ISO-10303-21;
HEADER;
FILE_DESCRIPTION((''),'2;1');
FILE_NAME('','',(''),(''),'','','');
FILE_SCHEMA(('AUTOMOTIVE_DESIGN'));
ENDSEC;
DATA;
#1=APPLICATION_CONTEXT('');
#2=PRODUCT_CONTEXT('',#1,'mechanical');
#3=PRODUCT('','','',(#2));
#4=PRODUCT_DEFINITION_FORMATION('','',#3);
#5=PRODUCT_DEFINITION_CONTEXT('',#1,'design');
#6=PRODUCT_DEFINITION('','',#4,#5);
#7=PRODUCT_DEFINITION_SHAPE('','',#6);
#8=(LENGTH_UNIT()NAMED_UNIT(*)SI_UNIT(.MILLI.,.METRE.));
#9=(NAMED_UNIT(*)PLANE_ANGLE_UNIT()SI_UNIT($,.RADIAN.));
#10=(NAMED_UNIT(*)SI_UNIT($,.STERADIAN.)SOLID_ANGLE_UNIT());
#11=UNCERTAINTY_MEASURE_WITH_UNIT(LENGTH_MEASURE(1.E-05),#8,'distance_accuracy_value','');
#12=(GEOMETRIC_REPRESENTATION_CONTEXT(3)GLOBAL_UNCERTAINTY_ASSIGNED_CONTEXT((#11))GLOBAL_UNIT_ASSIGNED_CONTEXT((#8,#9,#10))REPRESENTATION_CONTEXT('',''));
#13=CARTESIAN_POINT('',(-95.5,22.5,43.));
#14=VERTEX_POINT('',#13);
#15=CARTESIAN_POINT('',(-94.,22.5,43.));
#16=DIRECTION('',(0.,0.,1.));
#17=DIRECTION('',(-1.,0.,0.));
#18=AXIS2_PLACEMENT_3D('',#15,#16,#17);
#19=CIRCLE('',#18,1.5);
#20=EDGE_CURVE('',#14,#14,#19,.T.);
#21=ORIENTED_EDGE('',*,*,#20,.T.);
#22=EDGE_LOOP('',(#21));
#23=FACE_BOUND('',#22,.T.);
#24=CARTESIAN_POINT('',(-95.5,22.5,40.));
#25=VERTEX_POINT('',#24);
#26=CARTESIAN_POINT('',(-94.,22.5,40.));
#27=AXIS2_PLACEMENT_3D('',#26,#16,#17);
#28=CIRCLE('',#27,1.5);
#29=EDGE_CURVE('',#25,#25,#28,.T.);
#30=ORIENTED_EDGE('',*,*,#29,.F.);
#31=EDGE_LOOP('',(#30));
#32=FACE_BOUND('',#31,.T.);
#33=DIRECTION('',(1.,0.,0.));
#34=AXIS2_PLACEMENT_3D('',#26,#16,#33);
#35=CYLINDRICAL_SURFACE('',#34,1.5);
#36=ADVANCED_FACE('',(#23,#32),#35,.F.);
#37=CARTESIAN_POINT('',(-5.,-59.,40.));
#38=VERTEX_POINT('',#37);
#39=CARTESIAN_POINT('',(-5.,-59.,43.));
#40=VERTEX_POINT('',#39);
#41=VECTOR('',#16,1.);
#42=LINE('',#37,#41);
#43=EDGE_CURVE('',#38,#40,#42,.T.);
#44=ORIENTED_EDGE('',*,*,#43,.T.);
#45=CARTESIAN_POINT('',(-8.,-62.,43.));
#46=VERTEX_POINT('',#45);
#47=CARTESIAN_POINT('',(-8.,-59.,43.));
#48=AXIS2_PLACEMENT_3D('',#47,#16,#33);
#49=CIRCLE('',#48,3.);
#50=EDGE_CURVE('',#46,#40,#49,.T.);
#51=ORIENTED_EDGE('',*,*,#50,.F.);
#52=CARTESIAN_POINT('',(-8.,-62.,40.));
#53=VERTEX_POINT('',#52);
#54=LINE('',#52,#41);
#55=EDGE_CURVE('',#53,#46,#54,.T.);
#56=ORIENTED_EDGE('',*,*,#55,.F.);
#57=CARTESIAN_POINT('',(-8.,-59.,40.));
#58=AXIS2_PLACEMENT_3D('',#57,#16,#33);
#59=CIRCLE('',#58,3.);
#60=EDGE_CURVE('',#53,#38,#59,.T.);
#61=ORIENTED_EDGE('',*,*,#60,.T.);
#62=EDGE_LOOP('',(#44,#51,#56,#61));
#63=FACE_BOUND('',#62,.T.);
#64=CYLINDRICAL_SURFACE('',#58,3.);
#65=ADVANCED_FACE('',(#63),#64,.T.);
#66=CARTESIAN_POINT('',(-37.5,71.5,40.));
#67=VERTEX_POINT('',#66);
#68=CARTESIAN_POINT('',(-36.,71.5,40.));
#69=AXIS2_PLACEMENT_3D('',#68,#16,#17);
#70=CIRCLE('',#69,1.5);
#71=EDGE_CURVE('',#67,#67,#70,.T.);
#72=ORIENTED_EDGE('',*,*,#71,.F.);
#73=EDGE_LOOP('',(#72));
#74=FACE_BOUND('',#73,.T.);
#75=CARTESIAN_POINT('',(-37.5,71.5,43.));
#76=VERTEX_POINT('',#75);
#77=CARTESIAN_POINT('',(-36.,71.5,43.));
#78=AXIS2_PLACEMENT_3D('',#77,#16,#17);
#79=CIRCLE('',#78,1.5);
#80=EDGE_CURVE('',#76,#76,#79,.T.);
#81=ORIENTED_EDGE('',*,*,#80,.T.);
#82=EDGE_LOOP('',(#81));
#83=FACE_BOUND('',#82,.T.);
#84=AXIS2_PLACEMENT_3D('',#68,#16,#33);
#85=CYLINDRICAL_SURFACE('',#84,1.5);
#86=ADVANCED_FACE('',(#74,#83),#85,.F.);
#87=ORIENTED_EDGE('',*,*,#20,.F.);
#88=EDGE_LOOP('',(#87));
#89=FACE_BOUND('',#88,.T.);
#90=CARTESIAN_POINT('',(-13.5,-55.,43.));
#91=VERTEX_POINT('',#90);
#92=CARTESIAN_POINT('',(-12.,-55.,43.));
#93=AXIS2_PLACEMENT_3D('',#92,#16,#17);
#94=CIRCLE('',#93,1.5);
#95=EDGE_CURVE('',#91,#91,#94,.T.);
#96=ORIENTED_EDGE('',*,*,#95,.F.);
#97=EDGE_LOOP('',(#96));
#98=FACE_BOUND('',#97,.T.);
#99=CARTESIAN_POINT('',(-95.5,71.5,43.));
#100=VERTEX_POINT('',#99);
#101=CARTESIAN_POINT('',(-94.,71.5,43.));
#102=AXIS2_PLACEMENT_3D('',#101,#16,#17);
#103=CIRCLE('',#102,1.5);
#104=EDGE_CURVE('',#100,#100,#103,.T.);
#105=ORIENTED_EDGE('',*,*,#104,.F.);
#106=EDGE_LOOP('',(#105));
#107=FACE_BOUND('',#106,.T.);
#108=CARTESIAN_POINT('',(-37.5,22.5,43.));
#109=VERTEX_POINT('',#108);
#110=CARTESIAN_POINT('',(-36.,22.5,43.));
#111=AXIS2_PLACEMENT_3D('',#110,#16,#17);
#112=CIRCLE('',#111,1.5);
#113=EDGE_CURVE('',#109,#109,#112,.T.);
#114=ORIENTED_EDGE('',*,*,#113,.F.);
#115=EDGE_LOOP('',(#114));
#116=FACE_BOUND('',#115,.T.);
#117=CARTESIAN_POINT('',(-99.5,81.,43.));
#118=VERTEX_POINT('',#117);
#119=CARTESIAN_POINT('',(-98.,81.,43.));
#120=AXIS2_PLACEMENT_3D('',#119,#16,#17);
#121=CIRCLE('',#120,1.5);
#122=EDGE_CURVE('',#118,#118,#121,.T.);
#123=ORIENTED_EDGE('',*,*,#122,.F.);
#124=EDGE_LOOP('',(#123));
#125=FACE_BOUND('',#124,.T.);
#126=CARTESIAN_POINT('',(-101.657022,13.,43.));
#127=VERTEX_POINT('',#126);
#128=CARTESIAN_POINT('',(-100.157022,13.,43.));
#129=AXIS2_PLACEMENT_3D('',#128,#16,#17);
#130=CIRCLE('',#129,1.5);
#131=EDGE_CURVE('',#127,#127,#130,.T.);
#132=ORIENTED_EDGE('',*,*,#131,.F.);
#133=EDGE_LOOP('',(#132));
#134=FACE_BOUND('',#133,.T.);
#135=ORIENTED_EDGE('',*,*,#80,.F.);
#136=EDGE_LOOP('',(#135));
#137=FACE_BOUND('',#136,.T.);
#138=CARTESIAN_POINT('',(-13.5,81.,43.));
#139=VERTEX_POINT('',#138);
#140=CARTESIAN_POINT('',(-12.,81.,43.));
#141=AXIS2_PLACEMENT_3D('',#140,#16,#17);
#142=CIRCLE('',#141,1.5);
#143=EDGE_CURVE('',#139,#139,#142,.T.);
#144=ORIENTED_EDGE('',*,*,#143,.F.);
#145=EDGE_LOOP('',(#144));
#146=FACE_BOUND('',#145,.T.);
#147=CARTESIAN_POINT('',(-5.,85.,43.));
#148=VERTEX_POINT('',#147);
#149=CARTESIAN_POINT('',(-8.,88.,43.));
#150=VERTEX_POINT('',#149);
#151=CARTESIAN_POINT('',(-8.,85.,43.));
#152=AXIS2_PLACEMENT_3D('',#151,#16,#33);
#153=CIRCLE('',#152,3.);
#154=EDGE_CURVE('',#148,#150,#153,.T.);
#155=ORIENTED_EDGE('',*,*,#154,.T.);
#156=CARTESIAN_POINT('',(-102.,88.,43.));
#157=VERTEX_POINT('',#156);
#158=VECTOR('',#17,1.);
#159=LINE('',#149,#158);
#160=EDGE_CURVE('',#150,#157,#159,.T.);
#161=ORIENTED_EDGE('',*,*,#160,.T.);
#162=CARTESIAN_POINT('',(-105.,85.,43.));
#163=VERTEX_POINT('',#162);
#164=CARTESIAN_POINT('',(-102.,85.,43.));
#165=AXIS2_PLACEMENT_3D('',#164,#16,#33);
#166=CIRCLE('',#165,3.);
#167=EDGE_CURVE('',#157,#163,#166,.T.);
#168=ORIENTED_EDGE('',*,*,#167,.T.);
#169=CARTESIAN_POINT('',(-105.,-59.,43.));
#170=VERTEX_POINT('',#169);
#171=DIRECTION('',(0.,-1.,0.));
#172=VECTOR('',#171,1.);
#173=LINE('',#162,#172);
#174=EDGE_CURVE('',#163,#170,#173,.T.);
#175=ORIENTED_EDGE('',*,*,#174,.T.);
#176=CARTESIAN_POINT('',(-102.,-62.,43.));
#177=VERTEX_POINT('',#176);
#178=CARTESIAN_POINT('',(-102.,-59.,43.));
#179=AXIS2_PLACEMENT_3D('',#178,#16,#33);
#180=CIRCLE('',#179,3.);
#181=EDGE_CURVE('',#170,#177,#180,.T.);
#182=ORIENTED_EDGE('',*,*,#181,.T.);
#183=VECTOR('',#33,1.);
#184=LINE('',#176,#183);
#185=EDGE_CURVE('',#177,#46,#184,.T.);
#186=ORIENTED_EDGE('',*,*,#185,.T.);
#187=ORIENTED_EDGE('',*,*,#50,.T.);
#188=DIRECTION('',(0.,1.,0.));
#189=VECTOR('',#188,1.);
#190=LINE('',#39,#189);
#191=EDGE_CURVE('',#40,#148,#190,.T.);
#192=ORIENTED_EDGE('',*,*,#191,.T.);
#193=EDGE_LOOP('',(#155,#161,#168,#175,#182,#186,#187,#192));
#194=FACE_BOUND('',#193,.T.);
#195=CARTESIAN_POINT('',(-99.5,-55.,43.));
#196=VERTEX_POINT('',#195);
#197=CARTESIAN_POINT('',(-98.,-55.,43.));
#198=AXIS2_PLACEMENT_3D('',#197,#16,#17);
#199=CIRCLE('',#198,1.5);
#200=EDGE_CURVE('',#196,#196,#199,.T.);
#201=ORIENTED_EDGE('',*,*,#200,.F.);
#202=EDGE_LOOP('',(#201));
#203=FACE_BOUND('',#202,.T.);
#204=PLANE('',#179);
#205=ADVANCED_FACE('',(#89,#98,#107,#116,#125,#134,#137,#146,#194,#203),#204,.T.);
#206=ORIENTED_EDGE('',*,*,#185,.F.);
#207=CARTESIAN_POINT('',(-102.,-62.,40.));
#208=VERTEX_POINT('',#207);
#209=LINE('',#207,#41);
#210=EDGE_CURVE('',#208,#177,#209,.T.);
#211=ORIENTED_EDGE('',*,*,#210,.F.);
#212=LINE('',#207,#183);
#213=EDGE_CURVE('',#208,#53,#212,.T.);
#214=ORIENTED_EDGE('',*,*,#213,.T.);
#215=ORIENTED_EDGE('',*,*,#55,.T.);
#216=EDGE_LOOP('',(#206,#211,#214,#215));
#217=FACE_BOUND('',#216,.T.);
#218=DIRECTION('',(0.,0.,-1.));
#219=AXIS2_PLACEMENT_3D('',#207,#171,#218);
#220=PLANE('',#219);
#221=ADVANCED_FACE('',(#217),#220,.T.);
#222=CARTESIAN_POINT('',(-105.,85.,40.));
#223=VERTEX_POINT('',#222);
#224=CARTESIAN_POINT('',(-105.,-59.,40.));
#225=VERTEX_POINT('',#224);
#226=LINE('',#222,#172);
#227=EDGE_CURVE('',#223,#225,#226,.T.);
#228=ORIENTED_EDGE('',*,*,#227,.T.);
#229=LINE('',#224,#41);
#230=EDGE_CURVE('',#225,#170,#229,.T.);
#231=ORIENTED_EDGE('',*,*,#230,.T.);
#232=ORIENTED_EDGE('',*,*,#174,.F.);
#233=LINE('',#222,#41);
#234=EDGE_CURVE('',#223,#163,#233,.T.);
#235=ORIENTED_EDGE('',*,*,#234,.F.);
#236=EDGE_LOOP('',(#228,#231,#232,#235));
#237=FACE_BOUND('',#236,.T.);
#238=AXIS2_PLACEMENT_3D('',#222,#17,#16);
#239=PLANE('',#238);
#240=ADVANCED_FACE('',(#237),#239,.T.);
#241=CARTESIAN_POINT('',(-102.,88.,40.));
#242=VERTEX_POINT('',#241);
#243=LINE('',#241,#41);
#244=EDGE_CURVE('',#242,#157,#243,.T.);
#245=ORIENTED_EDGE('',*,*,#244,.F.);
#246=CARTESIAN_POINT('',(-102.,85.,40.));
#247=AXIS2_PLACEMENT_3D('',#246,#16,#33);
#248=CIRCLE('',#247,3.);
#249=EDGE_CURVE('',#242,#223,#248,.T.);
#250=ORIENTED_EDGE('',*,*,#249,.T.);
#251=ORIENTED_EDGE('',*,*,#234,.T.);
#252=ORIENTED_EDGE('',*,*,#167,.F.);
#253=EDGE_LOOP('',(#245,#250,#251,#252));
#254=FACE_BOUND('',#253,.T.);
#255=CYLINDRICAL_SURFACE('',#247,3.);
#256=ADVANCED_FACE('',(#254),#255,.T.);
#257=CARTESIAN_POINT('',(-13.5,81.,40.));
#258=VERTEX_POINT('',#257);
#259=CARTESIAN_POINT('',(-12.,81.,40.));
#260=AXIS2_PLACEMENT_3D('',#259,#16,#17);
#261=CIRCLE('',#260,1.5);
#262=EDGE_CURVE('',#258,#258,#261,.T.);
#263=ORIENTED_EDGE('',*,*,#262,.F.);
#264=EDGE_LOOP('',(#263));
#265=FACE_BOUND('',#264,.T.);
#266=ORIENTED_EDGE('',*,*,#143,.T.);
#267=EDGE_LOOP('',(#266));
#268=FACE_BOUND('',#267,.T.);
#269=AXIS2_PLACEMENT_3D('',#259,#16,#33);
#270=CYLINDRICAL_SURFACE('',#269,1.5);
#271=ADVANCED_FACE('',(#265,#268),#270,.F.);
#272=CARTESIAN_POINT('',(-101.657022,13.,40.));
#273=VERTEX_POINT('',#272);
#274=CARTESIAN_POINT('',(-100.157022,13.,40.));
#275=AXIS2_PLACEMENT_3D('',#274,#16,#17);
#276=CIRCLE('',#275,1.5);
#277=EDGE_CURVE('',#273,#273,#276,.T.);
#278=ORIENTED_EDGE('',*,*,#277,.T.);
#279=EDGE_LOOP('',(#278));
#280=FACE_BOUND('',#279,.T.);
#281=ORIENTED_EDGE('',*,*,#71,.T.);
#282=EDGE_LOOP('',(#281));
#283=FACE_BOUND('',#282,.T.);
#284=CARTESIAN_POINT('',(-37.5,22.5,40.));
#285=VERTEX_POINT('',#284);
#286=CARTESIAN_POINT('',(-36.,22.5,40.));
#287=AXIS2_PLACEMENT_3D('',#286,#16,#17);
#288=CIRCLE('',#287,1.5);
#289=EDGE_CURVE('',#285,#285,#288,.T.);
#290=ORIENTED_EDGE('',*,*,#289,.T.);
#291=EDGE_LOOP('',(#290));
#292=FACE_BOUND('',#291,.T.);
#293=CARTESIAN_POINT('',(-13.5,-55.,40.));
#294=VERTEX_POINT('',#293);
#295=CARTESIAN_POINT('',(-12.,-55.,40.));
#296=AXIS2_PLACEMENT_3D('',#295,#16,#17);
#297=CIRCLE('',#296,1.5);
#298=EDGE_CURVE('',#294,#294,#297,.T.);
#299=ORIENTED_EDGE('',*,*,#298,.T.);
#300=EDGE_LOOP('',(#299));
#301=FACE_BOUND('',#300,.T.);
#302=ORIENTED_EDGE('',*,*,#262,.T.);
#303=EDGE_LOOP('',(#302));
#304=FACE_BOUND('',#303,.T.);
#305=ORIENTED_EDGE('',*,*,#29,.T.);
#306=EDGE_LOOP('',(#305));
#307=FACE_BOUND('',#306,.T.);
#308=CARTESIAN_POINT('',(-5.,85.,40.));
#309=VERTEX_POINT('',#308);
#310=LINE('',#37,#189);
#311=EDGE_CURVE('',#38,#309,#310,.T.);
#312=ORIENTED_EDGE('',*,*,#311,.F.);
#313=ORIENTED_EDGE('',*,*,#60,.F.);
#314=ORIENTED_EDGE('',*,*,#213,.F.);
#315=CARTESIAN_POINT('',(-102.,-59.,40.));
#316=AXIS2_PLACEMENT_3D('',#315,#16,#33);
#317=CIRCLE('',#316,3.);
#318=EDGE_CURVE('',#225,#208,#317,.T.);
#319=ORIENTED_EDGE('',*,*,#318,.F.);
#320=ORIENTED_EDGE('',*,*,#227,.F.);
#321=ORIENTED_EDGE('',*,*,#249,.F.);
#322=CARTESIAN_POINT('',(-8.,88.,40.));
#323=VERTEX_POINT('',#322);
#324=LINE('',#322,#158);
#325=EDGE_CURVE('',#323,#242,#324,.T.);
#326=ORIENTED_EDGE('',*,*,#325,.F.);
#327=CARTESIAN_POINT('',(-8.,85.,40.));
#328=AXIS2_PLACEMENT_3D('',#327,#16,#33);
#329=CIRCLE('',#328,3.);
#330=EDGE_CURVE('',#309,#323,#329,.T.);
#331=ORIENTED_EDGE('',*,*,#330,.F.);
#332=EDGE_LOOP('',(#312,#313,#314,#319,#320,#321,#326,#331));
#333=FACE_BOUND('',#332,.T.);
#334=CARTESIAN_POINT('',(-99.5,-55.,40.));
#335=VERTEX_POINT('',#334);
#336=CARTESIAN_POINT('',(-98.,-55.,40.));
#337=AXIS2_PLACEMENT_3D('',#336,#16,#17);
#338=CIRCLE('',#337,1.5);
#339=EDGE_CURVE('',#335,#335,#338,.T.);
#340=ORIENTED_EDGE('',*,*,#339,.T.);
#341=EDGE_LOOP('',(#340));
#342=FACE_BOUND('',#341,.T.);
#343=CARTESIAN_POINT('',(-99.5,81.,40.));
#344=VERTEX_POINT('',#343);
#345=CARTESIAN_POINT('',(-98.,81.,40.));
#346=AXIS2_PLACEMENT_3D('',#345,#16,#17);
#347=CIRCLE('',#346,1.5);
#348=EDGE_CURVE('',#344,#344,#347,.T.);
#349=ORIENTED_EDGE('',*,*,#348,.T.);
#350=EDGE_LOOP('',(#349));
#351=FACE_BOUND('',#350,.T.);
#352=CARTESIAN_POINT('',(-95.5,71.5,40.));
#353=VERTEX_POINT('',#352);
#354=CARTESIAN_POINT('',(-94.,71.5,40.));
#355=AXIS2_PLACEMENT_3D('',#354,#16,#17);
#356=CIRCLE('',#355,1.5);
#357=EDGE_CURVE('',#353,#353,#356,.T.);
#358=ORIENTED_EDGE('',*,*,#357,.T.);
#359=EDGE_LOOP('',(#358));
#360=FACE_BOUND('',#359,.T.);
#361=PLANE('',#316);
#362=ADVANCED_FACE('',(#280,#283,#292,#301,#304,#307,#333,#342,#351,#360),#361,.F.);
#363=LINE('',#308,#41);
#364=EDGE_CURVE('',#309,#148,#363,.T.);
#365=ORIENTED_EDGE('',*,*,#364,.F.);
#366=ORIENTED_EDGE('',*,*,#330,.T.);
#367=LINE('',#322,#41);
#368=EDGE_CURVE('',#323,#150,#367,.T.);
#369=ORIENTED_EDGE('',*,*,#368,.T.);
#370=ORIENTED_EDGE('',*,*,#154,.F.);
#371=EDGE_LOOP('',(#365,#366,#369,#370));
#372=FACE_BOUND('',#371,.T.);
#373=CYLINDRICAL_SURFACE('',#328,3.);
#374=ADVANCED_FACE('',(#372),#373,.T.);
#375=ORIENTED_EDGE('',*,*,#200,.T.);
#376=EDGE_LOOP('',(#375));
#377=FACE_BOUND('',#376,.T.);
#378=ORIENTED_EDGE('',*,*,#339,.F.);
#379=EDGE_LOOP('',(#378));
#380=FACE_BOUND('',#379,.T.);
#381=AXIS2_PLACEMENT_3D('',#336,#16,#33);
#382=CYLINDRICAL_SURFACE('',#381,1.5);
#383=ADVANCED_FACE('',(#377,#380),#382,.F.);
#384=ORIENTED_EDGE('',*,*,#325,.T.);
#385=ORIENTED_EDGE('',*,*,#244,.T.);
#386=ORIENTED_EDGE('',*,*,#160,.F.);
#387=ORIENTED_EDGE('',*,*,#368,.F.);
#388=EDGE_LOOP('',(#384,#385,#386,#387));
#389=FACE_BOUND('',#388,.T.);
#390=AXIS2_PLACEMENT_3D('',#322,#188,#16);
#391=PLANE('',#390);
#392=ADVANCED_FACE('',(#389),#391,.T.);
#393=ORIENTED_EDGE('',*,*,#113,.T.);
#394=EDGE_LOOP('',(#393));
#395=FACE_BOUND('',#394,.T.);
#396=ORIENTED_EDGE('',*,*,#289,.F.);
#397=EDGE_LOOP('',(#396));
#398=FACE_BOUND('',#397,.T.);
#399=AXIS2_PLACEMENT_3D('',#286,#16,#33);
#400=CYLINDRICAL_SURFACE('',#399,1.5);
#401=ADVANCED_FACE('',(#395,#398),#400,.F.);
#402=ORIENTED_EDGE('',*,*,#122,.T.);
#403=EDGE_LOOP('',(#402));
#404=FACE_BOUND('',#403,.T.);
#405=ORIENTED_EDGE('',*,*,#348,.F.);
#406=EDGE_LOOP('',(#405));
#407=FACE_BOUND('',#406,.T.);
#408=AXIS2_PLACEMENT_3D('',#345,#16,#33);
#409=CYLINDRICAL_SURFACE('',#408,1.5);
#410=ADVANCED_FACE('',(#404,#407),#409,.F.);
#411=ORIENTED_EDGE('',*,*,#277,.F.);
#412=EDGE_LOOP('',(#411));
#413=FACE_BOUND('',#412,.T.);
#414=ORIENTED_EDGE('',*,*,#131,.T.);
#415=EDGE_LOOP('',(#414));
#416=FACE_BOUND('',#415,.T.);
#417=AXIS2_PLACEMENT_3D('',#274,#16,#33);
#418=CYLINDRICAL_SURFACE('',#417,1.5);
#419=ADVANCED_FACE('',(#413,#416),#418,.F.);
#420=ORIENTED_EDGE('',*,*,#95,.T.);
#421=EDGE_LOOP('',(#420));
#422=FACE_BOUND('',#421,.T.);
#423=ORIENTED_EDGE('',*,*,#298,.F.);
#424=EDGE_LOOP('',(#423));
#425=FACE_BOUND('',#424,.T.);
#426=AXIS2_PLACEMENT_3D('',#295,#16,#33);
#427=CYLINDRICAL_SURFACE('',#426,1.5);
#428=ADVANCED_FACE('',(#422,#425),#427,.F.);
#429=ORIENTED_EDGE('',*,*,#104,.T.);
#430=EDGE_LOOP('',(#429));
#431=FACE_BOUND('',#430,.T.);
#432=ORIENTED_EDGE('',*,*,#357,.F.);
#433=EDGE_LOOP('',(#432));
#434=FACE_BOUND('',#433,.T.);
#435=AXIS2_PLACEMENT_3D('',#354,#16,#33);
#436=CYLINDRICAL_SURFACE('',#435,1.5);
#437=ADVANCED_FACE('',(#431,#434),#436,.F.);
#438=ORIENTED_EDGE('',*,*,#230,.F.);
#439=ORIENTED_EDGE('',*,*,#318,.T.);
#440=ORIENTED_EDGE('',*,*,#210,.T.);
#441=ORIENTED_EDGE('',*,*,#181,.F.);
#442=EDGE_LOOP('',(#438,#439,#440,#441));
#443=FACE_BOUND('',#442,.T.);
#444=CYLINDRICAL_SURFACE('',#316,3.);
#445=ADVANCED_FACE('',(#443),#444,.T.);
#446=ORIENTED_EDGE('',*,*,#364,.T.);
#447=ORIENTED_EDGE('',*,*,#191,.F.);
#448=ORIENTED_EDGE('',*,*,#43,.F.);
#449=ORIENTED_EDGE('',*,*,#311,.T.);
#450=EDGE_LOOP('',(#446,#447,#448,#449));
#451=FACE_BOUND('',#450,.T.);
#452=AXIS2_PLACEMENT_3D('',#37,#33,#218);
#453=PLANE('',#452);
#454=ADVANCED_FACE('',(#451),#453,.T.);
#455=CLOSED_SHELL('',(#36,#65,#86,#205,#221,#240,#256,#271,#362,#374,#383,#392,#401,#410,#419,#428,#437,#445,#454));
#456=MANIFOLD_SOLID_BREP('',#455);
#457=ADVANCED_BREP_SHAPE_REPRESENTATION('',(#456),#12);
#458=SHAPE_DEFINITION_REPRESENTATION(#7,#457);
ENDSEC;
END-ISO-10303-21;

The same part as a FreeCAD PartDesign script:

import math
import FreeCAD as App
import Part
import Sketcher
from FreeCAD import Vector

doc = App.newDocument("Part")
body = doc.addObject("PartDesign::Body", "Body")

# Sketch on XY plane
sketch1 = body.newObject("Sketcher::SketchObject", "Sketch")
sketch1.AttachmentSupport = (doc.getObject("XY_Plane"), [""])
sketch1.MapMode = "FlatFace"
sketch1.AttachmentOffset = App.Placement(Vector(0, 0, 43), App.Rotation())
sketch1.addGeometry([
    Part.LineSegment(Vector(-102, -62, 0), Vector(-8, -62, 0)),  # 0
    Part.ArcOfCircle(Part.Circle(Vector(-8, -59, 0), Vector(0, 0, 1), 3), math.radians(-90), math.radians(0)),  # 1
    Part.LineSegment(Vector(-5, -59, 0), Vector(-5, 85, 0)),  # 2
    Part.ArcOfCircle(Part.Circle(Vector(-8, 85, 0), Vector(0, 0, 1), 3), math.radians(0), math.radians(90)),  # 3
    Part.LineSegment(Vector(-8, 88, 0), Vector(-102, 88, 0)),  # 4
    Part.ArcOfCircle(Part.Circle(Vector(-102, 85, 0), Vector(0, 0, 1), 3), math.radians(90), math.radians(180)),  # 5
    Part.LineSegment(Vector(-105, 85, 0), Vector(-105, -59, 0)),  # 6
    Part.ArcOfCircle(Part.Circle(Vector(-102, -59, 0), Vector(0, 0, 1), 3), math.radians(180), math.radians(270)),  # 7
    Part.Circle(Vector(-98, -55, 0), Vector(0, 0, 1), 1.5),  # 8
    Part.Circle(Vector(-12, -55, 0), Vector(0, 0, 1), 1.5),  # 9
    Part.Circle(Vector(-100.2, 13, 0), Vector(0, 0, 1), 1.5),  # 10
    Part.Circle(Vector(-94, 22.5, 0), Vector(0, 0, 1), 1.5),  # 11
    Part.Circle(Vector(-94, 71.5, 0), Vector(0, 0, 1), 1.5),  # 12
    Part.Circle(Vector(-98, 81, 0), Vector(0, 0, 1), 1.5),  # 13
    Part.Circle(Vector(-36, 22.5, 0), Vector(0, 0, 1), 1.5),  # 14
    Part.Circle(Vector(-36, 71.5, 0), Vector(0, 0, 1), 1.5),  # 15
    Part.Circle(Vector(-12, 81, 0), Vector(0, 0, 1), 1.5),  # 16
], False)
sketch1.addConstraint([
    Sketcher.Constraint("Tangent", 0, 2, 1, 1),
    Sketcher.Constraint("Tangent", 1, 2, 2, 1),
    Sketcher.Constraint("Tangent", 2, 2, 3, 1),
    Sketcher.Constraint("Tangent", 3, 2, 4, 1),
    Sketcher.Constraint("Tangent", 4, 2, 5, 1),
    Sketcher.Constraint("Tangent", 5, 2, 6, 1),
    Sketcher.Constraint("Tangent", 6, 2, 7, 1),
    Sketcher.Constraint("Tangent", 7, 2, 0, 1),
    Sketcher.Constraint("Horizontal", 0),
    Sketcher.Constraint("Vertical", 2),
    Sketcher.Constraint("Horizontal", 4),
    Sketcher.Constraint("Vertical", 6),
    Sketcher.Constraint("Equal", 1, 3),
    Sketcher.Constraint("Equal", 3, 5),
    Sketcher.Constraint("Equal", 5, 7),
    Sketcher.Constraint("Equal", 8, 9),
    Sketcher.Constraint("Equal", 9, 10),
    Sketcher.Constraint("Equal", 10, 11),
    Sketcher.Constraint("Equal", 11, 12),
    Sketcher.Constraint("Equal", 12, 13),
    Sketcher.Constraint("Equal", 13, 14),
    Sketcher.Constraint("Equal", 14, 15),
    Sketcher.Constraint("Equal", 15, 16),
    Sketcher.Constraint("Horizontal", 8, 3, 9, 3),
    Sketcher.Constraint("Horizontal", 11, 3, 14, 3),
    Sketcher.Constraint("Horizontal", 12, 3, 15, 3),
    Sketcher.Constraint("Horizontal", 13, 3, 16, 3),
    Sketcher.Constraint("Vertical", 11, 3, 12, 3),
    Sketcher.Constraint("Vertical", 8, 3, 13, 3),
    Sketcher.Constraint("Vertical", 14, 3, 15, 3),
    Sketcher.Constraint("Vertical", 9, 3, 16, 3),
    Sketcher.Constraint("Diameter", 8, 3.0),
    Sketcher.Constraint("Radius", 1, 3.0),
    Sketcher.Constraint("DistanceX", 0, 1, 0, 2, 94.0),
    Sketcher.Constraint("DistanceY", 2, 1, 2, 2, 144.0),
    Sketcher.Constraint("DistanceX", 1, 3, -1, 1, 8.0),
    Sketcher.Constraint("DistanceY", 1, 3, -1, 1, 59.0),
    Sketcher.Constraint("DistanceX", 8, 3, -1, 1, 98.0),
    Sketcher.Constraint("DistanceY", 8, 3, -1, 1, 55.0),
    Sketcher.Constraint("DistanceX", 9, 3, -1, 1, 12.0),
    Sketcher.Constraint("DistanceY", -1, 1, 10, 3, 13.0),
    Sketcher.Constraint("DistanceX", 11, 3, -1, 1, 94.0),
    Sketcher.Constraint("DistanceY", -1, 1, 13, 3, 81.0),
    Sketcher.Constraint("DistanceX", 14, 3, -1, 1, 36.0),
    Sketcher.Constraint("DistanceY", 11, 3, 12, 3, 49.0),
    Sketcher.Constraint("DistanceY", -1, 1, 11, 3, 22.5),
    Sketcher.Constraint("DistanceX", 10, 3, -1, 1, 100.157022),
])
pad1 = body.newObject("PartDesign::Pad", "Pad")
pad1.Profile = sketch1
pad1.Length = 3
pad1.Reversed = True

doc.recompute()
